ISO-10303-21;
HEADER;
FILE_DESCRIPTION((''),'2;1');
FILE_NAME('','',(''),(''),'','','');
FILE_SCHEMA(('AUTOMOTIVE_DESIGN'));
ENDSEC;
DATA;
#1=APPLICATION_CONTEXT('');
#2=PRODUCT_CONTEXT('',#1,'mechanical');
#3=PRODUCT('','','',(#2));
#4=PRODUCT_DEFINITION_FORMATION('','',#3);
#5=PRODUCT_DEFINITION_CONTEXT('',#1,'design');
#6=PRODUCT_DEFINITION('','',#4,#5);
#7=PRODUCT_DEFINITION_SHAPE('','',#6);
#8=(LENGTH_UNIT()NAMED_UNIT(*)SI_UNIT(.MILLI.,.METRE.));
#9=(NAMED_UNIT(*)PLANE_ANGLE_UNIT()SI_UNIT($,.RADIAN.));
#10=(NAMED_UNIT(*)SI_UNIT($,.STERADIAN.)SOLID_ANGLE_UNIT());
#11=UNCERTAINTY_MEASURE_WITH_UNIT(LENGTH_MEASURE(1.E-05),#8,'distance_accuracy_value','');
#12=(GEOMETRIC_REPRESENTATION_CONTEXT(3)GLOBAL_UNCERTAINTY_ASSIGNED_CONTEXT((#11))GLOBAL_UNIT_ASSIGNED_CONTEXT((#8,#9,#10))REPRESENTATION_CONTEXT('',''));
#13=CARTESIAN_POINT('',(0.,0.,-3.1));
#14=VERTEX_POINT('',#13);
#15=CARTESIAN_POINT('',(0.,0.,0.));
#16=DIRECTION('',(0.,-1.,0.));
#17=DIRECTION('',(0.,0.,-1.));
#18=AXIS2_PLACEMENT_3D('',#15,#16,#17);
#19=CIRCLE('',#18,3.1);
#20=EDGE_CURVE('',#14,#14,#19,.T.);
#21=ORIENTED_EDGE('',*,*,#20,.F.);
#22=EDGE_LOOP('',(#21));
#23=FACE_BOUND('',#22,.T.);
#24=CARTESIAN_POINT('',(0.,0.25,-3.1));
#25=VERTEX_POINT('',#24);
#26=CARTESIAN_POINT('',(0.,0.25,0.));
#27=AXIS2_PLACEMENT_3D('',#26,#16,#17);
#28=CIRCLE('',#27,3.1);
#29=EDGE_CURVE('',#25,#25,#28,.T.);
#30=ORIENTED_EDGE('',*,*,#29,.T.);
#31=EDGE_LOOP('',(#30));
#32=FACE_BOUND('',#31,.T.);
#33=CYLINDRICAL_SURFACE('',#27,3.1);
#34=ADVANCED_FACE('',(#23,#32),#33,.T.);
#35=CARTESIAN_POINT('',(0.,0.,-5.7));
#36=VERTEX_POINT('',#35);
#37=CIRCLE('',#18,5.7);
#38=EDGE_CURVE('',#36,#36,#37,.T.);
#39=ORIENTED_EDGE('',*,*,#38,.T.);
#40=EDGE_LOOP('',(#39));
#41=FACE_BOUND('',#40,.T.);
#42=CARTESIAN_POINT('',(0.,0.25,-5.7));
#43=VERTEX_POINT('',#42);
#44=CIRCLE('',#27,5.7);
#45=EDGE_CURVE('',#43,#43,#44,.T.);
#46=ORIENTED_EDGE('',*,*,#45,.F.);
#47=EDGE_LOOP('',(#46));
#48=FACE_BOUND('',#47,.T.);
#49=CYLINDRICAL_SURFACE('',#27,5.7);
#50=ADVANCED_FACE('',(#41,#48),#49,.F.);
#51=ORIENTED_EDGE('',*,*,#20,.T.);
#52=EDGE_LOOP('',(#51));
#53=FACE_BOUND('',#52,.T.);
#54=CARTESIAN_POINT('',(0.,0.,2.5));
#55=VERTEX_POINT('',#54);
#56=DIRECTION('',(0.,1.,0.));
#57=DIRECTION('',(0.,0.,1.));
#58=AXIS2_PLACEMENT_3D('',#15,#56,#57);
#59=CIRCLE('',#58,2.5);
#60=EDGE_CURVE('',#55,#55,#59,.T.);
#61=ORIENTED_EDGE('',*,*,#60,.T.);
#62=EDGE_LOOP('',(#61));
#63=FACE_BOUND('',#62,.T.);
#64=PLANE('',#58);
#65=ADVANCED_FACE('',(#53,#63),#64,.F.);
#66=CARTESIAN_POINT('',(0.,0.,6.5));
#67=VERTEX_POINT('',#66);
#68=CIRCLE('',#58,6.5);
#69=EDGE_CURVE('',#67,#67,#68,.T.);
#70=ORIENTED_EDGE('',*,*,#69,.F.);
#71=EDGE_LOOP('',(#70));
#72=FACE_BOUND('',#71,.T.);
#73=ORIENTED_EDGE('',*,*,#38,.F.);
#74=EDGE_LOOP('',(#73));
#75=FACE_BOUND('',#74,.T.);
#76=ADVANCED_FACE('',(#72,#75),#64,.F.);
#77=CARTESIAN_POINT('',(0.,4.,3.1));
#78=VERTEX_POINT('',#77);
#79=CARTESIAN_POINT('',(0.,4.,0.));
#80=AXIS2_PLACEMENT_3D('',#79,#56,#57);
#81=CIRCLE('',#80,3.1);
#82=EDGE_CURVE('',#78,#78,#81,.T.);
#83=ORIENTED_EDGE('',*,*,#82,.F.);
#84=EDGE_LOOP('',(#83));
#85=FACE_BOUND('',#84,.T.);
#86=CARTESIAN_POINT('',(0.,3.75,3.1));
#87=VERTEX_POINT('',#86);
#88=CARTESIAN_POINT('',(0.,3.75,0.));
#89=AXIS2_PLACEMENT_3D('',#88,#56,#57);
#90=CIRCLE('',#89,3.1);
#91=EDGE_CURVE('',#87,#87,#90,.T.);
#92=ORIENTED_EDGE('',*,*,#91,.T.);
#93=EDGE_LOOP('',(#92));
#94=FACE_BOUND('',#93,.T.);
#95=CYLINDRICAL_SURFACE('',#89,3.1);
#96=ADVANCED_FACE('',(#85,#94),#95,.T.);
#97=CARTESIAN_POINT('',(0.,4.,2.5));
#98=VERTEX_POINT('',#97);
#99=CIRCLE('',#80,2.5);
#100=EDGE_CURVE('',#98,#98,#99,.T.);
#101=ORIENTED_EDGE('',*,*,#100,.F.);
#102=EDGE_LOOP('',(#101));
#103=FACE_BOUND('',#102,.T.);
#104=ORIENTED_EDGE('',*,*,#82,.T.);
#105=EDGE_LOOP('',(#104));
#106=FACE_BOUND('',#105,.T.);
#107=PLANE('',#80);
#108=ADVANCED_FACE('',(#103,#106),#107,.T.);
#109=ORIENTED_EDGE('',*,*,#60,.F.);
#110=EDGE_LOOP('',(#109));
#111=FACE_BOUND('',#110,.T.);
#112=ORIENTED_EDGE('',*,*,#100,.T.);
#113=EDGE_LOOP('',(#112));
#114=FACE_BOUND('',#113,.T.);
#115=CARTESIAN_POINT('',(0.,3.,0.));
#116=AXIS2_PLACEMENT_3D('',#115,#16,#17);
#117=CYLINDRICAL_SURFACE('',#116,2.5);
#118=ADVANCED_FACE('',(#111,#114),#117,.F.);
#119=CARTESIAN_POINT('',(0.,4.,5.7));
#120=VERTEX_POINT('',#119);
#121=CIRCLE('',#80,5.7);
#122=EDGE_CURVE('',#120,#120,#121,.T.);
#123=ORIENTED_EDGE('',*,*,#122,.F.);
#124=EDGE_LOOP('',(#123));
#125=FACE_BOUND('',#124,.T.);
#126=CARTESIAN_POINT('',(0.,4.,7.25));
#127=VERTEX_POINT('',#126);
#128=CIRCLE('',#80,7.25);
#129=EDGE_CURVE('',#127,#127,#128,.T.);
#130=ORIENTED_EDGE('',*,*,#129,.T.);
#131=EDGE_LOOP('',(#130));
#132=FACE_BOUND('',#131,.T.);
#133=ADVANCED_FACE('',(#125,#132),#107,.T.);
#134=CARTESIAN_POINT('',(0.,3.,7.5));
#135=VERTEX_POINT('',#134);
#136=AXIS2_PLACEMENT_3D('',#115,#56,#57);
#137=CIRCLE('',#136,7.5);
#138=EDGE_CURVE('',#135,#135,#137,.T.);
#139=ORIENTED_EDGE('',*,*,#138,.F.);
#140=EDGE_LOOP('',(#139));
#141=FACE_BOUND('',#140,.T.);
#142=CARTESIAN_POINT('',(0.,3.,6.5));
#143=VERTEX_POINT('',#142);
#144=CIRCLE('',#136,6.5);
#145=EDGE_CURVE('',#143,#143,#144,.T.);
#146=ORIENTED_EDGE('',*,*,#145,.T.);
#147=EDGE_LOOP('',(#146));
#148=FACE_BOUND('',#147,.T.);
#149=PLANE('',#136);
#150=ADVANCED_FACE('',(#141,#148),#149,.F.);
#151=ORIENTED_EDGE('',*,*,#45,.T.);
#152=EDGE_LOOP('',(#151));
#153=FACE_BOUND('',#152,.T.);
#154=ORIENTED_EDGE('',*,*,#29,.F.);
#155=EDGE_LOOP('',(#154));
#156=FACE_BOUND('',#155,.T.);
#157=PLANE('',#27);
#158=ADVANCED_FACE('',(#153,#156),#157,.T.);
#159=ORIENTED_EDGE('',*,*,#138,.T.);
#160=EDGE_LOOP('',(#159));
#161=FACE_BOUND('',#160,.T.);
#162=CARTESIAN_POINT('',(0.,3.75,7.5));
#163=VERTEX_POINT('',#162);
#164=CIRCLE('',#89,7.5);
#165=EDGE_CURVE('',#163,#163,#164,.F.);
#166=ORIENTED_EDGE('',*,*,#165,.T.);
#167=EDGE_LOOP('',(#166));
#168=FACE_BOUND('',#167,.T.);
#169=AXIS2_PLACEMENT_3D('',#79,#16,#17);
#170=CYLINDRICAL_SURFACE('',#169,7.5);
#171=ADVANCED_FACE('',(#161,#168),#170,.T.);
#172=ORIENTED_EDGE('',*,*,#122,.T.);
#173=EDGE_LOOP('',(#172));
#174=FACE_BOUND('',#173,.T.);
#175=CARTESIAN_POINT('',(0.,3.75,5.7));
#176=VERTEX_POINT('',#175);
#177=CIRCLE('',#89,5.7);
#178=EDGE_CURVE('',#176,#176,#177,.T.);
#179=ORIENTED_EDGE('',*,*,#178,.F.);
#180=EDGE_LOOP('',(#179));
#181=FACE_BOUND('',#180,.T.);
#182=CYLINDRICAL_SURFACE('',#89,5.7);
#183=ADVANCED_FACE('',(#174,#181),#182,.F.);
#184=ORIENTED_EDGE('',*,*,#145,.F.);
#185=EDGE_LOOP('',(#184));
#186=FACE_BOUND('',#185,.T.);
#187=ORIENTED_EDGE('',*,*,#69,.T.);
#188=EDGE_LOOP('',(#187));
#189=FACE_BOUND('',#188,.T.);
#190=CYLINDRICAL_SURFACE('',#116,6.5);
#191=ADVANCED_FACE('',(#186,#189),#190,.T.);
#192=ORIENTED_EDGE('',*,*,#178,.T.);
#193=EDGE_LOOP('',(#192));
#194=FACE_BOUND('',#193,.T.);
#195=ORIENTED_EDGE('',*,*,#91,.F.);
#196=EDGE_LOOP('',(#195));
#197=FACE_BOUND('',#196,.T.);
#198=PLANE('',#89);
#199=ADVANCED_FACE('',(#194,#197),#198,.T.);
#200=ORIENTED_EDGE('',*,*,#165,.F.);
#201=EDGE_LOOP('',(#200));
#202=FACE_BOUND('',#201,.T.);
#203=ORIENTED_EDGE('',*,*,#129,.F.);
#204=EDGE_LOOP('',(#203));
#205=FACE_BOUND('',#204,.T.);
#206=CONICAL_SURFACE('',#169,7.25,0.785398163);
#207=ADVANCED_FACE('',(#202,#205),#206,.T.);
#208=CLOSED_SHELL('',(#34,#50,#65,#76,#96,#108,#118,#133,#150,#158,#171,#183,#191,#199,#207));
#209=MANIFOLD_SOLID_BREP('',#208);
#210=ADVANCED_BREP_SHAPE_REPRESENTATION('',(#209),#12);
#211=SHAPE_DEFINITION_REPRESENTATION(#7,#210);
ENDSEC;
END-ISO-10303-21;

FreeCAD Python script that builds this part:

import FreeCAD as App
import Part
import Sketcher


def edges_at(feature, points):
    """Names of the edges that pass closest to the given points."""
    edges = feature.Shape.Edges
    near = lambda p: min(range(len(edges)), key=lambda i: edges[i].distToShape(Part.Vertex(*p))[0])
    return sorted({f"Edge{near(p) + 1}" for p in points})

doc = App.newDocument("Part")
body = doc.addObject("PartDesign::Body", "Body")

sketch1 = body.newObject("Sketcher::SketchObject", "Sketch")
sketch1.AttachmentSupport = (doc.getObject("XZ_Plane"), [""])
sketch1.MapMode = "FlatFace"
sketch1.addGeometry([
    Part.Circle(App.Vector(0, 0, 0), App.Vector(0, 0, 1), 6.5),
    Part.Circle(App.Vector(0, 0, 0), App.Vector(0, 0, 1), 2.5),
], False)
sketch1.addConstraint([
    Sketcher.Constraint("Coincident", 0, 3, -1, 1),
    Sketcher.Constraint("Coincident", 1, 3, -1, 1),
    Sketcher.Constraint("Diameter", 0, 13.0),
    Sketcher.Constraint("Diameter", 1, 5.0),
])
pad1 = body.newObject("PartDesign::Pad", "Pad")
pad1.Profile = sketch1
pad1.Length = 3
pad1.Reversed = True

sketch2 = body.newObject("Sketcher::SketchObject", "Sketch001")
sketch2.AttachmentSupport = (doc.getObject("XZ_Plane"), [""])
sketch2.MapMode = "FlatFace"
sketch2.AttachmentOffset = App.Placement(App.Vector(0, 0, -3), App.Rotation())
sketch2.addGeometry([
    Part.Circle(App.Vector(0, 0, 0), App.Vector(0, 0, 1), 7.5),
    Part.Circle(App.Vector(0, 0, 0), App.Vector(0, 0, 1), 2.5),
], False)
sketch2.addConstraint([
    Sketcher.Constraint("Coincident", 0, 3, -1, 1),
    Sketcher.Constraint("Coincident", 1, 3, -1, 1),
    Sketcher.Constraint("Diameter", 0, 15.0),
    Sketcher.Constraint("Diameter", 1, 5.0),
])
pad2 = body.newObject("PartDesign::Pad", "Pad001")
pad2.Profile = sketch2
pad2.Length = 1
pad2.Reversed = True

sketch3 = body.newObject("Sketcher::SketchObject", "Sketch002")
sketch3.AttachmentSupport = (doc.getObject("XZ_Plane"), [""])
sketch3.MapMode = "FlatFace"
sketch3.addGeometry([
    Part.Circle(App.Vector(0, 0, 0), App.Vector(0, 0, 1), 5.7),
    Part.Circle(App.Vector(0, 0, 0), App.Vector(0, 0, 1), 3.1),
], False)
sketch3.addConstraint([
    Sketcher.Constraint("Coincident", 0, 3, -1, 1),
    Sketcher.Constraint("Coincident", 1, 3, -1, 1),
    Sketcher.Constraint("Diameter", 0, 11.4),
    Sketcher.Constraint("Diameter", 1, 6.2),
])
pocket1 = body.newObject("PartDesign::Pocket", "Pocket")
pocket1.Profile = sketch3
pocket1.Length = 0.25

sketch4 = body.newObject("Sketcher::SketchObject", "Sketch003")
sketch4.AttachmentSupport = (doc.getObject("XZ_Plane"), [""])
sketch4.MapMode = "FlatFace"
sketch4.AttachmentOffset = App.Placement(App.Vector(0, 0, -3.75), App.Rotation())
sketch4.addGeometry([
    Part.Circle(App.Vector(0, 0, 0), App.Vector(0, 0, 1), 5.7),
    Part.Circle(App.Vector(0, 0, 0), App.Vector(0, 0, 1), 3.1),
], False)
sketch4.addConstraint([
    Sketcher.Constraint("Coincident", 0, 3, -1, 1),
    Sketcher.Constraint("Coincident", 1, 3, -1, 1),
    Sketcher.Constraint("Diameter", 0, 11.4),
    Sketcher.Constraint("Diameter", 1, 6.2),
])
pocket2 = body.newObject("PartDesign::Pocket", "Pocket001")
pocket2.Profile = sketch4
pocket2.Length = 0.25
doc.recompute()

chamfer = body.newObject("PartDesign::Chamfer", "Chamfer")
chamfer.Base = (pocket2, edges_at(pocket2, [(0, 4, -7.5)]))
chamfer.Size = 0.25

doc.recompute()
